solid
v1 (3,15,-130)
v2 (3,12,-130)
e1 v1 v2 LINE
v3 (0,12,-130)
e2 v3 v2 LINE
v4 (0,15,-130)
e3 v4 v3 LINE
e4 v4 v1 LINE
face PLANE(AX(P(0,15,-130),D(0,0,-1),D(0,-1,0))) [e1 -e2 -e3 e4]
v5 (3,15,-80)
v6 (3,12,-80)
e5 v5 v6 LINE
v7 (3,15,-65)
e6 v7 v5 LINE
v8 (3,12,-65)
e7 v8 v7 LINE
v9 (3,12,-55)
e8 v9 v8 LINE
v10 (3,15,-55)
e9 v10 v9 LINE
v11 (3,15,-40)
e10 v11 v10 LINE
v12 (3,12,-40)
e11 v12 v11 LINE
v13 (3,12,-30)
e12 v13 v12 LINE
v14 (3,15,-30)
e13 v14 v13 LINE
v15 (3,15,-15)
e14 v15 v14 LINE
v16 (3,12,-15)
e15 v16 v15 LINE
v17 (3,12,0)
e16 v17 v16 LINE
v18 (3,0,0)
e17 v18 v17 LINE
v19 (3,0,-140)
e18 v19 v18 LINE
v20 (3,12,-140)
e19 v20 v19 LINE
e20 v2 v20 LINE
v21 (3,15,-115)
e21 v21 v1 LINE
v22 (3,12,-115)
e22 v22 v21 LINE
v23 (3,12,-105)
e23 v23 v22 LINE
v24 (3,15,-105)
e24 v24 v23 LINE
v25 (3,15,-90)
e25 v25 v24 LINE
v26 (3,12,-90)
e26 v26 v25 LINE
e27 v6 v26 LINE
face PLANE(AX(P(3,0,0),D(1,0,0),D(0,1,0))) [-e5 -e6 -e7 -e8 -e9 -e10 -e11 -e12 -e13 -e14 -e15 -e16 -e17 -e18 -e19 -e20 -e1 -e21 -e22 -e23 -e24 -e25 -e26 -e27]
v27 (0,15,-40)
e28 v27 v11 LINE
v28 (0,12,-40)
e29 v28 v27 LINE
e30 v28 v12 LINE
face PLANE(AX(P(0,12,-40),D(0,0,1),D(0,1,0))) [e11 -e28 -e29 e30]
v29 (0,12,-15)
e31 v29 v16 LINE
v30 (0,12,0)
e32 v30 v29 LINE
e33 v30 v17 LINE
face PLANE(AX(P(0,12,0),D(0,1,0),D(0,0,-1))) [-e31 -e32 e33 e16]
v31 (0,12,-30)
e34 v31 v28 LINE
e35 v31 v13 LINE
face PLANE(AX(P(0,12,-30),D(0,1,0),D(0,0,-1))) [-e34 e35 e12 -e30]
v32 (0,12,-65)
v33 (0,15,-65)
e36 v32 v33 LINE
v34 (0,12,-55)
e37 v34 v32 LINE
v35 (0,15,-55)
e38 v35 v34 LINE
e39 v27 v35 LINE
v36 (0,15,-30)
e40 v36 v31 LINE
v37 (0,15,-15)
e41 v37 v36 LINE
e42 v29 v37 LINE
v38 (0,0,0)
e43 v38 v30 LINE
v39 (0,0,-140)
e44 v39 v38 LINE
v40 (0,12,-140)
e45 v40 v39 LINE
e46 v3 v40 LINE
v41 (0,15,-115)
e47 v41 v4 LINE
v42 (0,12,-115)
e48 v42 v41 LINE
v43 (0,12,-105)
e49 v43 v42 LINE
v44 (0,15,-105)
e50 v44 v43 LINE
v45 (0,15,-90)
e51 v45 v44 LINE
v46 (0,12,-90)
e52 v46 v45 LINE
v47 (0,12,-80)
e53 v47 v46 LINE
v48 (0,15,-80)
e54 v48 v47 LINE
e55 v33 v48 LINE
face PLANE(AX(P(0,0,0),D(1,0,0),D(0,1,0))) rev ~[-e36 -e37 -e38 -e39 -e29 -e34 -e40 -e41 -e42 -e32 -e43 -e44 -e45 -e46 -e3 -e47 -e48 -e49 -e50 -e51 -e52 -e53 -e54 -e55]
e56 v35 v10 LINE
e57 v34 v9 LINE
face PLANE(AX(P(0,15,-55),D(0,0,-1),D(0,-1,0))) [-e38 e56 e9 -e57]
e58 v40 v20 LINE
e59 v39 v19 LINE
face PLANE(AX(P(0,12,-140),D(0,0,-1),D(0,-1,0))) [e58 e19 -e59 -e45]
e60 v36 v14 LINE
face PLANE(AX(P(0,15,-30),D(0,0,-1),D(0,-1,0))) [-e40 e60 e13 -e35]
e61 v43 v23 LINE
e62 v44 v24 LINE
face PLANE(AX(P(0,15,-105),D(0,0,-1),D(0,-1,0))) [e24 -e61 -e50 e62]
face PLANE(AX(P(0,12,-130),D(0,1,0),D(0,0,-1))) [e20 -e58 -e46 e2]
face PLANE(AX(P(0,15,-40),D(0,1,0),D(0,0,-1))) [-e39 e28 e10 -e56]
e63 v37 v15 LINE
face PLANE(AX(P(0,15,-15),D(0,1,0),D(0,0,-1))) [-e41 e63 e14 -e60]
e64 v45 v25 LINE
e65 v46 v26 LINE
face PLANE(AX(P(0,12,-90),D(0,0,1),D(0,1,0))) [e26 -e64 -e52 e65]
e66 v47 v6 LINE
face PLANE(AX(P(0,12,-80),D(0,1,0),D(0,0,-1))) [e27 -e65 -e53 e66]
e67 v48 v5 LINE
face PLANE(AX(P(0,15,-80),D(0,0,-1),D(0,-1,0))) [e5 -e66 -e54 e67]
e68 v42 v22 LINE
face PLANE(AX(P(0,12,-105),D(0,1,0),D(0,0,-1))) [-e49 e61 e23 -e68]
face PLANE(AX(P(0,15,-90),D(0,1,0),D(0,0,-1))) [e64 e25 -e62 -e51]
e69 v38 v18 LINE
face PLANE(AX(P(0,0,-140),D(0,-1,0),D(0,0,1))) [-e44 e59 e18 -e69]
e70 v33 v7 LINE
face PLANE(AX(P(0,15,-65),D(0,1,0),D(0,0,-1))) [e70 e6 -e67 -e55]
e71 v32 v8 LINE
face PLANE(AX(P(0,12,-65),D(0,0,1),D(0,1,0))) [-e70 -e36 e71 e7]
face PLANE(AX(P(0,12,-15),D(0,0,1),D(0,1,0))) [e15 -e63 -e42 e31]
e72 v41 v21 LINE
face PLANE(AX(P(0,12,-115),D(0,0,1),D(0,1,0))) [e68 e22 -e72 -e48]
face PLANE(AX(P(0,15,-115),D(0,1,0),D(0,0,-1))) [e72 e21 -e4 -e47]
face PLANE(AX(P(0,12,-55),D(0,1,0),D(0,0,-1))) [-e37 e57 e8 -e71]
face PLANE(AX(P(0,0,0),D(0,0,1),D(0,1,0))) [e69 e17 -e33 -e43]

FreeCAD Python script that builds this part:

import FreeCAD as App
import Part
import Sketcher
from FreeCAD import Vector

doc = App.newDocument("Part")
params = doc.addObject("Spreadsheet::Sheet", "Params")
for row, (alias, value) in enumerate([
    ("sketch1_width", "12 mm"),
    ("sketch1_width2", "3 mm"),
    ("sketch1_height", "140 mm"),
    ("sketch1_height2", "15 mm"),
    ("pad1_length", "3 mm"),
], start=1):
    params.set(f"A{row}", alias)
    params.set(f"B{row}", "=" + value)
    params.setAlias(f"B{row}", alias)

body = doc.addObject("PartDesign::Body", "Body")

# Sketch on YZ plane
sketch1 = body.newObject("Sketcher::SketchObject", "Sketch")
sketch1.AttachmentSupport = (doc.getObject("YZ_Plane"), [""])
sketch1.MapMode = "FlatFace"
sketch1.addGeometry(Part.LineSegment(Vector(12, 0, 0), Vector(0, 0, 0)), False)
sketch1.addGeometry(Part.LineSegment(Vector(0, 0, 0), Vector(0, -140, 0)), False)
sketch1.addGeometry(Part.LineSegment(Vector(0, -140, 0), Vector(12, -140, 0)), False)
sketch1.addGeometry(Part.LineSegment(Vector(12, -140, 0), Vector(12, -130, 0)), False)
sketch1.addGeometry(Part.LineSegment(Vector(12, -130, 0), Vector(15, -130, 0)), False)
sketch1.addGeometry(Part.LineSegment(Vector(15, -130, 0), Vector(15, -115, 0)), False)
sketch1.addGeometry(Part.LineSegment(Vector(15, -115, 0), Vector(12, -115, 0)), False)
sketch1.addGeometry(Part.LineSegment(Vector(12, -115, 0), Vector(12, -105, 0)), False)
sketch1.addGeometry(Part.LineSegment(Vector(12, -105, 0), Vector(15, -105, 0)), False)
sketch1.addGeometry(Part.LineSegment(Vector(15, -105, 0), Vector(15, -90, 0)), False)
sketch1.addGeometry(Part.LineSegment(Vector(15, -90, 0), Vector(12, -90, 0)), False)
sketch1.addGeometry(Part.LineSegment(Vector(12, -90, 0), Vector(12, -80, 0)), False)
sketch1.addGeometry(Part.LineSegment(Vector(12, -80, 0), Vector(15, -80, 0)), False)
sketch1.addGeometry(Part.LineSegment(Vector(15, -80, 0), Vector(15, -65, 0)), False)
sketch1.addGeometry(Part.LineSegment(Vector(15, -65, 0), Vector(12, -65, 0)), False)
sketch1.addGeometry(Part.LineSegment(Vector(12, -65, 0), Vector(12, -55, 0)), False)
sketch1.addGeometry(Part.LineSegment(Vector(12, -55, 0), Vector(15, -55, 0)), False)
sketch1.addGeometry(Part.LineSegment(Vector(15, -55, 0), Vector(15, -40, 0)), False)
sketch1.addGeometry(Part.LineSegment(Vector(15, -40, 0), Vector(12, -40, 0)), False)
sketch1.addGeometry(Part.LineSegment(Vector(12, -40, 0), Vector(12, -30, 0)), False)
sketch1.addGeometry(Part.LineSegment(Vector(12, -30, 0), Vector(15, -30, 0)), False)
sketch1.addGeometry(Part.LineSegment(Vector(15, -30, 0), Vector(15, -15, 0)), False)
sketch1.addGeometry(Part.LineSegment(Vector(15, -15, 0), Vector(12, -15, 0)), False)
sketch1.addGeometry(Part.LineSegment(Vector(12, -15, 0), Vector(12, 0, 0)), False)
sketch1.addConstraint(Sketcher.Constraint("Coincident", 0, 2, 1, 1))
sketch1.addConstraint(Sketcher.Constraint("Coincident", 1, 2, 2, 1))
sketch1.addConstraint(Sketcher.Constraint("Coincident", 2, 2, 3, 1))
sketch1.addConstraint(Sketcher.Constraint("Coincident", 3, 2, 4, 1))
sketch1.addConstraint(Sketcher.Constraint("Coincident", 4, 2, 5, 1))
sketch1.addConstraint(Sketcher.Constraint("Coincident", 5, 2, 6, 1))
sketch1.addConstraint(Sketcher.Constraint("Coincident", 6, 2, 7, 1))
sketch1.addConstraint(Sketcher.Constraint("Coincident", 7, 2, 8, 1))
sketch1.addConstraint(Sketcher.Constraint("Coincident", 8, 2, 9, 1))
sketch1.addConstraint(Sketcher.Constraint("Coincident", 9, 2, 10, 1))
sketch1.addConstraint(Sketcher.Constraint("Coincident", 10, 2, 11, 1))
sketch1.addConstraint(Sketcher.Constraint("Coincident", 11, 2, 12, 1))
sketch1.addConstraint(Sketcher.Constraint("Coincident", 12, 2, 13, 1))
sketch1.addConstraint(Sketcher.Constraint("Coincident", 13, 2, 14, 1))
sketch1.addConstraint(Sketcher.Constraint("Coincident", 14, 2, 15, 1))
sketch1.addConstraint(Sketcher.Constraint("Coincident", 15, 2, 16, 1))
sketch1.addConstraint(Sketcher.Constraint("Coincident", 16, 2, 17, 1))
sketch1.addConstraint(Sketcher.Constraint("Coincident", 17, 2, 18, 1))
sketch1.addConstraint(Sketcher.Constraint("Coincident", 18, 2, 19, 1))
sketch1.addConstraint(Sketcher.Constraint("Coincident", 19, 2, 20, 1))
sketch1.addConstraint(Sketcher.Constraint("Coincident", 20, 2, 21, 1))
sketch1.addConstraint(Sketcher.Constraint("Coincident", 21, 2, 22, 1))
sketch1.addConstraint(Sketcher.Constraint("Coincident", 22, 2, 23, 1))
sketch1.addConstraint(Sketcher.Constraint("Coincident", 23, 2, 0, 1))
sketch1.addConstraint(Sketcher.Constraint("Horizontal", 0))
sketch1.addConstraint(Sketcher.Constraint("Vertical", 1))
sketch1.addConstraint(Sketcher.Constraint("Horizontal", 2))
sketch1.addConstraint(Sketcher.Constraint("Vertical", 3))
sketch1.addConstraint(Sketcher.Constraint("Horizontal", 4))
sketch1.addConstraint(Sketcher.Constraint("Vertical", 5))
sketch1.addConstraint(Sketcher.Constraint("Horizontal", 6))
sketch1.addConstraint(Sketcher.Constraint("Vertical", 7))
sketch1.addConstraint(Sketcher.Constraint("Horizontal", 8))
sketch1.addConstraint(Sketcher.Constraint("Vertical", 9))
sketch1.addConstraint(Sketcher.Constraint("Horizontal", 10))
sketch1.addConstraint(Sketcher.Constraint("Vertical", 11))
sketch1.addConstraint(Sketcher.Constraint("Horizontal", 12))
sketch1.addConstraint(Sketcher.Constraint("Vertical", 13))
sketch1.addConstraint(Sketcher.Constraint("Horizontal", 14))
sketch1.addConstraint(Sketcher.Constraint("Vertical", 15))
sketch1.addConstraint(Sketcher.Constraint("Horizontal", 16))
sketch1.addConstraint(Sketcher.Constraint("Vertical", 17))
sketch1.addConstraint(Sketcher.Constraint("Horizontal", 18))
sketch1.addConstraint(Sketcher.Constraint("Vertical", 19))
sketch1.addConstraint(Sketcher.Constraint("Horizontal", 20))
sketch1.addConstraint(Sketcher.Constraint("Vertical", 21))
sketch1.addConstraint(Sketcher.Constraint("Horizontal", 22))
sketch1.addConstraint(Sketcher.Constraint("Vertical", 23))
sketch1.addConstraint(Sketcher.Constraint("Coincident", 0, 2, -1, 1))
sketch1.addConstraint(Sketcher.Constraint("Vertical", 3, 2, 6, 2))
sketch1.addConstraint(Sketcher.Constraint("Vertical", 5, 2, 8, 2))
sketch1.addConstraint(Sketcher.Constraint("Vertical", 7, 2, 10, 2))
sketch1.addConstraint(Sketcher.Constraint("Vertical", 9, 2, 12, 2))
sketch1.addConstraint(Sketcher.Constraint("Vertical", 11, 2, 14, 2))
sketch1.addConstraint(Sketcher.Constraint("Vertical", 13, 2, 16, 2))
sketch1.addConstraint(Sketcher.Constraint("Vertical", 15, 2, 18, 2))
sketch1.addConstraint(Sketcher.Constraint("Vertical", 17, 2, 20, 2))
sketch1.addConstraint(Sketcher.Constraint("Vertical", 19, 2, 22, 2))
sketch1.addConstraint(Sketcher.Constraint("Equal", 3, 7))
sketch1.addConstraint(Sketcher.Constraint("Equal", 5, 9))
sketch1.addConstraint(Sketcher.Constraint("Equal", 7, 11))
sketch1.addConstraint(Sketcher.Constraint("Equal", 9, 13))
sketch1.addConstraint(Sketcher.Constraint("Equal", 11, 15))
sketch1.addConstraint(Sketcher.Constraint("Equal", 13, 17))
sketch1.addConstraint(Sketcher.Constraint("Equal", 15, 19))
sketch1.addConstraint(Sketcher.Constraint("Equal", 17, 21))
sketch1.addConstraint(Sketcher.Constraint("Equal", 21, 23))
sketch1.addConstraint(Sketcher.Constraint("DistanceX", 0, 2, 0, 1, 12.0))
sketch1.addConstraint(Sketcher.Constraint("DistanceX", 4, 1, 4, 2, 3.0))
sketch1.addConstraint(Sketcher.Constraint("DistanceY", 1, 2, 1, 1, 140.0))
sketch1.addConstraint(Sketcher.Constraint("DistanceY", 5, 1, 5, 2, 15.0))
sketch1.setExpression("Constraints[67]", "Params.sketch1_width")
sketch1.setExpression("Constraints[68]", "Params.sketch1_width2")
sketch1.setExpression("Constraints[69]", "Params.sketch1_height")
sketch1.setExpression("Constraints[70]", "Params.sketch1_height2")
pad1 = body.newObject("PartDesign::Pad", "Pad")
pad1.Profile = sketch1
pad1.setExpression("Length", "Params.pad1_length")

doc.recompute()
